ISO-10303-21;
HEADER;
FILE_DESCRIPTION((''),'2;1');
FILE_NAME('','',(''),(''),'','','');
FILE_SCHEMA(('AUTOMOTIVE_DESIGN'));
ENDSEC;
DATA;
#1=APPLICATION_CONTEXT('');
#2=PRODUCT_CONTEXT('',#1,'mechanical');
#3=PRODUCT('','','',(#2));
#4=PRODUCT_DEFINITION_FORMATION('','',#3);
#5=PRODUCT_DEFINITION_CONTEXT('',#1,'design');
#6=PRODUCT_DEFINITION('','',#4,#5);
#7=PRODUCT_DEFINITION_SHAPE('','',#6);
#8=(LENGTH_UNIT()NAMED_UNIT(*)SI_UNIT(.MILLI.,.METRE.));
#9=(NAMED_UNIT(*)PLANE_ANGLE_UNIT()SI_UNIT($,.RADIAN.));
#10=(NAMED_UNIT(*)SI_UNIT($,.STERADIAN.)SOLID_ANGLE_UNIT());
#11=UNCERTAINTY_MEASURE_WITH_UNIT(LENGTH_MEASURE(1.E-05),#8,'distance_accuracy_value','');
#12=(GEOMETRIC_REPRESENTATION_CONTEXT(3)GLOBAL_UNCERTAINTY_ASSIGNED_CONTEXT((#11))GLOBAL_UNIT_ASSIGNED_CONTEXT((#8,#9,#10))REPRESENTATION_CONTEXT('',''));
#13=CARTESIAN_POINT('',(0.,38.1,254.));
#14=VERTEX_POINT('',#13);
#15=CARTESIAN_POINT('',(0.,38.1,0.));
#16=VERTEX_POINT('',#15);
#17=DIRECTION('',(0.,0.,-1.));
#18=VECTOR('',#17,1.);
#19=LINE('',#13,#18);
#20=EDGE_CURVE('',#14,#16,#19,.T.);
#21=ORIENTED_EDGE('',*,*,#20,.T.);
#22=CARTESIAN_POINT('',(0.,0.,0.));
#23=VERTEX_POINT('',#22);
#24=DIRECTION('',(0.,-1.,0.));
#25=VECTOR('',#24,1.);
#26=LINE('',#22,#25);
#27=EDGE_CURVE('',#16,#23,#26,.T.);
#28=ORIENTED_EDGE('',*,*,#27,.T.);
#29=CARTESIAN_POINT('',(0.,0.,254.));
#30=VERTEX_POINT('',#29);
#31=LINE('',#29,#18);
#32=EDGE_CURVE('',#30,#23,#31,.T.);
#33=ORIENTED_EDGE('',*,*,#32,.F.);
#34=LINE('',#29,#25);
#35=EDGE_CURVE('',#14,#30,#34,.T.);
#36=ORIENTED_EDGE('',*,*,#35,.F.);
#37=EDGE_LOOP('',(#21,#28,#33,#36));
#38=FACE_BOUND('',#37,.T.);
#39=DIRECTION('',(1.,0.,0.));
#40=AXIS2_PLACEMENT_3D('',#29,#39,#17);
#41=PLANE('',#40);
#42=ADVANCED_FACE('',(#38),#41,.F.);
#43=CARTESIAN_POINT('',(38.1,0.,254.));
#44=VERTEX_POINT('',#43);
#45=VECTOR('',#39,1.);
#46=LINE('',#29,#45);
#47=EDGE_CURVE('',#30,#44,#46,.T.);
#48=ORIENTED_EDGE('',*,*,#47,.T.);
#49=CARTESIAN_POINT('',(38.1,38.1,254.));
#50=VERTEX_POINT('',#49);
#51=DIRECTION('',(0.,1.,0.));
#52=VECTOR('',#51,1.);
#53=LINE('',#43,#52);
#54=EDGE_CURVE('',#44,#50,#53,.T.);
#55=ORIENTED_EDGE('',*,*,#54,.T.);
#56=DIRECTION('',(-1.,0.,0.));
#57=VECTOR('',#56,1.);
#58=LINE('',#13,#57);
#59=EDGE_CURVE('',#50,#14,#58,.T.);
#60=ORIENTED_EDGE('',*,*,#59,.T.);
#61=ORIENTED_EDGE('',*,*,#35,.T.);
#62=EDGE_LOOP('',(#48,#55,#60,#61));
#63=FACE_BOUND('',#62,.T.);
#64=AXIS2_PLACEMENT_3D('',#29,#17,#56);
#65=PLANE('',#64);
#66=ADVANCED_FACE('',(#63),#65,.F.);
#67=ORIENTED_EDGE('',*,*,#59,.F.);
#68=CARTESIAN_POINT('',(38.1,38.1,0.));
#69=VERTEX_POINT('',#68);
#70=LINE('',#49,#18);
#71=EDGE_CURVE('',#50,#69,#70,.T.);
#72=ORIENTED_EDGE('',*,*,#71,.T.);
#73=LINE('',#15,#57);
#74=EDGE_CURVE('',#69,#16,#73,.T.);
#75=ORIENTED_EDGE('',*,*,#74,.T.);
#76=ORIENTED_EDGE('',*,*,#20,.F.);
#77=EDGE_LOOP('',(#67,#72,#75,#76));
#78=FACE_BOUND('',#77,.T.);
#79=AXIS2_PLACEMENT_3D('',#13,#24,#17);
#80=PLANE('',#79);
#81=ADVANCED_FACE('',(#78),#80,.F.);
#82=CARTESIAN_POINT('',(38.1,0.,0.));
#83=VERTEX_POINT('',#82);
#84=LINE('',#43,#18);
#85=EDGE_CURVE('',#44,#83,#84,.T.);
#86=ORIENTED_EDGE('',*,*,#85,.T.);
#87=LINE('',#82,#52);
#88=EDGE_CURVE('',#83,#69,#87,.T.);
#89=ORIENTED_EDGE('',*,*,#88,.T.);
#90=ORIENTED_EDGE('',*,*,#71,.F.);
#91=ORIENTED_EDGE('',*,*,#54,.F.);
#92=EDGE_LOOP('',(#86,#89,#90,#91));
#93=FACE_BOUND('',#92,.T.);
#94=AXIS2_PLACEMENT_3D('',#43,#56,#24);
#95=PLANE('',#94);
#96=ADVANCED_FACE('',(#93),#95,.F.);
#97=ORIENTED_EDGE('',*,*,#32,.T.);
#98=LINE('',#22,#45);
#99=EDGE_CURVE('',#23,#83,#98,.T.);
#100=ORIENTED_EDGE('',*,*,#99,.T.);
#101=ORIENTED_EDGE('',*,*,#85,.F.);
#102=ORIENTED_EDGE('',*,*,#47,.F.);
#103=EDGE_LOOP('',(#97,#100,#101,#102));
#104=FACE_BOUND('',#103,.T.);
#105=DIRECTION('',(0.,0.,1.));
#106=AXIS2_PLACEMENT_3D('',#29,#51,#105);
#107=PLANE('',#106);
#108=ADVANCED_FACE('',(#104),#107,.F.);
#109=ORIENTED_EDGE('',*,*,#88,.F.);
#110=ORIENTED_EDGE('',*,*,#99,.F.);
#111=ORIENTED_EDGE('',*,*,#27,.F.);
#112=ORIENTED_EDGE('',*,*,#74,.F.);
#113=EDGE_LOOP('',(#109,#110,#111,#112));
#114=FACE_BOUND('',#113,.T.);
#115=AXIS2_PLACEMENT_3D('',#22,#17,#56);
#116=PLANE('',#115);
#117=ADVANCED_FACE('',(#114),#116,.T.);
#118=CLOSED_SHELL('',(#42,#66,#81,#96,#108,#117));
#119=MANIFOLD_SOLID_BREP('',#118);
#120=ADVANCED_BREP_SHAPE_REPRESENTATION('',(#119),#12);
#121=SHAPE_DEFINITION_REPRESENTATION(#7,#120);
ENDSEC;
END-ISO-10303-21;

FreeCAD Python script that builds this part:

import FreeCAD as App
import Part
import Sketcher

V = App.Vector
Q = App.Units.Quantity

doc = App.newDocument("Part")
body = doc.addObject("PartDesign::Body", "Body")

# Sketch on XY plane
sketch1 = body.newObject("Sketcher::SketchObject", "Sketch")
sketch1.AttachmentSupport = (doc.getObject("XY_Plane"), [""])
sketch1.MapMode = "FlatFace"
sketch1.addGeometry(Part.LineSegment(V(0, 38.1, 0), V(0, 0, 0)), False)
sketch1.addGeometry(Part.LineSegment(V(0, 0, 0), V(38.1, 0, 0)), False)
sketch1.addGeometry(Part.LineSegment(V(38.1, 0, 0), V(38.1, 38.1, 0)), False)
sketch1.addGeometry(Part.LineSegment(V(38.1, 38.1, 0), V(0, 38.1, 0)), False)
sketch1.addConstraint(Sketcher.Constraint("Coincident", 0, 2, 1, 1))
sketch1.addConstraint(Sketcher.Constraint("Coincident", 1, 2, 2, 1))
sketch1.addConstraint(Sketcher.Constraint("Coincident", 2, 2, 3, 1))
sketch1.addConstraint(Sketcher.Constraint("Coincident", 3, 2, 0, 1))
sketch1.addConstraint(Sketcher.Constraint("Vertical", 0))
sketch1.addConstraint(Sketcher.Constraint("Horizontal", 1))
sketch1.addConstraint(Sketcher.Constraint("Vertical", 2))
sketch1.addConstraint(Sketcher.Constraint("Horizontal", 3))
sketch1.addConstraint(Sketcher.Constraint("Coincident", 0, 2, -1, 1))
sketch1.addConstraint(Sketcher.Constraint("Equal", 3, 0))
sketch1.addConstraint(Sketcher.Constraint("DistanceX", 1, 1, 1, 2, Q("1.5 in")))
pad1 = body.newObject("PartDesign::Pad", "Pad")
pad1.Profile = sketch1
pad1.Length = Q("10 in")

doc.recompute()
